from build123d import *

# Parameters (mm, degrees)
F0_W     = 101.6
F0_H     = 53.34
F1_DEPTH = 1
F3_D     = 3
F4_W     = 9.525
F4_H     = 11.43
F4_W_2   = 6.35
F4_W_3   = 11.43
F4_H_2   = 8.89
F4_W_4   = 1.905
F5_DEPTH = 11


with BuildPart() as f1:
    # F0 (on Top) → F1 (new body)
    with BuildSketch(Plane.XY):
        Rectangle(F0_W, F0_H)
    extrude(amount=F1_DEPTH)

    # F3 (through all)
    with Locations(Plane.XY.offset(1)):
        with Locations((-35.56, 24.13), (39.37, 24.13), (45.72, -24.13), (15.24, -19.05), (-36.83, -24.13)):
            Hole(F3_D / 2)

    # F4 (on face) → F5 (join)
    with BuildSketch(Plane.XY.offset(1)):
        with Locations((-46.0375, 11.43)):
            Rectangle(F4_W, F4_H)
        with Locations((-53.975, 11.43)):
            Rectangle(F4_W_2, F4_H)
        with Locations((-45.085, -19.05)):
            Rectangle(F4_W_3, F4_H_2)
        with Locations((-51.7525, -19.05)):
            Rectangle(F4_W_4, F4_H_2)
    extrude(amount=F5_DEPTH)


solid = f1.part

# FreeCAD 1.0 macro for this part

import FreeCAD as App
import Part
import Sketcher
from FreeCAD import Vector
Q = App.Units.Quantity

doc = App.newDocument("Part")
body = doc.addObject("PartDesign::Body", "Body")

# Sketch on XY plane
sketch1 = body.newObject("Sketcher::SketchObject", "Sketch")
sketch1.AttachmentSupport = (doc.getObject("XY_Plane"), [""])
sketch1.MapMode = "FlatFace"
sketch1.addGeometry([
    Part.LineSegment(Vector(-51, 27, 0), Vector(-51, -27, 0)),
    Part.LineSegment(Vector(-51, -27, 0), Vector(51, -27, 0)),
    Part.LineSegment(Vector(51, -27, 0), Vector(51, 27, 0)),
    Part.LineSegment(Vector(51, 27, 0), Vector(-51, 27, 0)),
], False)
sketch1.addConstraint([
    Sketcher.Constraint("Coincident", 0, 2, 1, 1),
    Sketcher.Constraint("Coincident", 1, 2, 2, 1),
    Sketcher.Constraint("Coincident", 2, 2, 3, 1),
    Sketcher.Constraint("Coincident", 3, 2, 0, 1),
    Sketcher.Constraint("Vertical", 0),
    Sketcher.Constraint("Horizontal", 1),
    Sketcher.Constraint("Vertical", 2),
    Sketcher.Constraint("Horizontal", 3),
    Sketcher.Constraint("Symmetric", 0, 2, 2, 2, -1, 1),
    Sketcher.Constraint("DistanceX", 1, 1, 1, 2, Q("4 in")),
    Sketcher.Constraint("DistanceY", 0, 2, 0, 1, Q("2.1 in")),
])
pad1 = body.newObject("PartDesign::Pad", "Pad")
pad1.Profile = sketch1
pad1.Length = 1

# Sketch on XY plane
sketch2 = body.newObject("Sketcher::SketchObject", "Sketch001")
sketch2.AttachmentSupport = (doc.getObject("XY_Plane"), [""])
sketch2.MapMode = "FlatFace"
sketch2.AttachmentOffset = App.Placement(Vector(0, 0, 1), App.Rotation())
sketch2.addGeometry([
    Part.Circle(Vector(-35.6, 24.1, 0), Vector(0, 0, 1), 1.5),  # 0
    Part.Circle(Vector(39.4, 24.1, 0), Vector(0, 0, 1), 1.5),  # 1
    Part.Circle(Vector(45.7, -24.1, 0), Vector(0, 0, 1), 1.5),  # 2
    Part.Circle(Vector(15.2, -19.1, 0), Vector(0, 0, 1), 1.5),  # 3
    Part.Circle(Vector(-36.8, -24.1, 0), Vector(0, 0, 1), 1.5),  # 4
], False)
sketch2.addConstraint([
    Sketcher.Constraint("Equal", 0, 1),
    Sketcher.Constraint("Equal", 1, 2),
    Sketcher.Constraint("Equal", 2, 3),
    Sketcher.Constraint("Equal", 3, 4),
    Sketcher.Constraint("Horizontal", 0, 3, 1, 3),
    Sketcher.Constraint("Horizontal", 2, 3, 4, 3),
    Sketcher.Constraint("DistanceX", 0, 3, 3, 3, Q("2 in")),
    Sketcher.Constraint("DistanceX", 4, 3, 1, 3, Q("3 in")),
    Sketcher.Constraint("DistanceX", 0, 3, -1, 1, Q("1.4 in")),
    Sketcher.Constraint("DistanceX", -1, 1, 2, 3, Q("1.8 in")),
    Sketcher.Constraint("DistanceY", 2, 3, 1, 3, Q("1.9 in")),
    Sketcher.Constraint("DistanceY", 2, 3, 3, 3, Q("0.2 in")),
    Sketcher.Constraint("Diameter", 0, 3.0),
    Sketcher.Constraint("DistanceY", -1, 1, 0, 3, Q("0.95 in")),
    Sketcher.Constraint("DistanceX", -1, 1, 1, 3, Q("1.55 in")),
])
doc.recompute()
hole = body.newObject("PartDesign::Hole", "Hole")
hole.Profile = sketch2
hole.ThreadType = "None"
hole.Diameter = 3
hole.DepthType = "ThroughAll"

# Sketch on XY plane
sketch3 = body.newObject("Sketcher::SketchObject", "Sketch002")
sketch3.AttachmentSupport = (doc.getObject("XY_Plane"), [""])
sketch3.MapMode = "FlatFace"
sketch3.AttachmentOffset = App.Placement(Vector(0, 0, 1), App.Rotation())
sketch3.addGeometry([
    Part.LineSegment(Vector(-41, 6, 0), Vector(-41, 17, 0)),  # 0
    Part.LineSegment(Vector(-41, 17, 0), Vector(-57, 17, 0)),  # 1
    Part.LineSegment(Vector(-57, 17, 0), Vector(-57, 6, 0)),  # 2
    Part.LineSegment(Vector(-57, 6, 0), Vector(-41, 6, 0)),  # 3
    Part.LineSegment(Vector(-39, -23, 0), Vector(-39, -15, 0)),  # 4
    Part.LineSegment(Vector(-39, -15, 0), Vector(-53, -15, 0)),  # 5
    Part.LineSegment(Vector(-53, -15, 0), Vector(-53, -23, 0)),  # 6
    Part.LineSegment(Vector(-53, -23, 0), Vector(-39, -23, 0)),  # 7
], False)
sketch3.addConstraint([
    Sketcher.Constraint("Coincident", 0, 2, 1, 1),
    Sketcher.Constraint("Coincident", 1, 2, 2, 1),
    Sketcher.Constraint("Coincident", 2, 2, 3, 1),
    Sketcher.Constraint("Coincident", 3, 2, 0, 1),
    Sketcher.Constraint("Coincident", 4, 2, 5, 1),
    Sketcher.Constraint("Coincident", 5, 2, 6, 1),
    Sketcher.Constraint("Coincident", 6, 2, 7, 1),
    Sketcher.Constraint("Coincident", 7, 2, 4, 1),
    Sketcher.Constraint("Vertical", 0),
    Sketcher.Constraint("Horizontal", 1),
    Sketcher.Constraint("Vertical", 2),
    Sketcher.Constraint("Horizontal", 3),
    Sketcher.Constraint("Vertical", 4),
    Sketcher.Constraint("Horizontal", 5),
    Sketcher.Constraint("Vertical", 6),
    Sketcher.Constraint("Horizontal", 7),
    Sketcher.Constraint("DistanceY", 0, 1, 0, 2, Q("0.45 in")),
    Sketcher.Constraint("DistanceY", 4, 1, 4, 2, Q("0.35 in")),
    Sketcher.Constraint("DistanceY", 4, 2, 3, 2, Q("0.8 in")),
    Sketcher.Constraint("DistanceX", 2, 2, 4, 2, Q("0.7 in")),
    Sketcher.Constraint("DistanceX", 1, 2, 1, 1, Q("0.625 in")),
    Sketcher.Constraint("DistanceX", 5, 2, 5, 1, Q("0.525 in")),
    Sketcher.Constraint("DistanceX", 1, 2, -1, 1, Q("2.25 in")),
    Sketcher.Constraint("DistanceY", -1, 1, 0, 2, Q("0.675 in")),
])
pad2 = body.newObject("PartDesign::Pad", "Pad001")
pad2.Profile = sketch3
pad2.Length = 11

doc.recompute()
